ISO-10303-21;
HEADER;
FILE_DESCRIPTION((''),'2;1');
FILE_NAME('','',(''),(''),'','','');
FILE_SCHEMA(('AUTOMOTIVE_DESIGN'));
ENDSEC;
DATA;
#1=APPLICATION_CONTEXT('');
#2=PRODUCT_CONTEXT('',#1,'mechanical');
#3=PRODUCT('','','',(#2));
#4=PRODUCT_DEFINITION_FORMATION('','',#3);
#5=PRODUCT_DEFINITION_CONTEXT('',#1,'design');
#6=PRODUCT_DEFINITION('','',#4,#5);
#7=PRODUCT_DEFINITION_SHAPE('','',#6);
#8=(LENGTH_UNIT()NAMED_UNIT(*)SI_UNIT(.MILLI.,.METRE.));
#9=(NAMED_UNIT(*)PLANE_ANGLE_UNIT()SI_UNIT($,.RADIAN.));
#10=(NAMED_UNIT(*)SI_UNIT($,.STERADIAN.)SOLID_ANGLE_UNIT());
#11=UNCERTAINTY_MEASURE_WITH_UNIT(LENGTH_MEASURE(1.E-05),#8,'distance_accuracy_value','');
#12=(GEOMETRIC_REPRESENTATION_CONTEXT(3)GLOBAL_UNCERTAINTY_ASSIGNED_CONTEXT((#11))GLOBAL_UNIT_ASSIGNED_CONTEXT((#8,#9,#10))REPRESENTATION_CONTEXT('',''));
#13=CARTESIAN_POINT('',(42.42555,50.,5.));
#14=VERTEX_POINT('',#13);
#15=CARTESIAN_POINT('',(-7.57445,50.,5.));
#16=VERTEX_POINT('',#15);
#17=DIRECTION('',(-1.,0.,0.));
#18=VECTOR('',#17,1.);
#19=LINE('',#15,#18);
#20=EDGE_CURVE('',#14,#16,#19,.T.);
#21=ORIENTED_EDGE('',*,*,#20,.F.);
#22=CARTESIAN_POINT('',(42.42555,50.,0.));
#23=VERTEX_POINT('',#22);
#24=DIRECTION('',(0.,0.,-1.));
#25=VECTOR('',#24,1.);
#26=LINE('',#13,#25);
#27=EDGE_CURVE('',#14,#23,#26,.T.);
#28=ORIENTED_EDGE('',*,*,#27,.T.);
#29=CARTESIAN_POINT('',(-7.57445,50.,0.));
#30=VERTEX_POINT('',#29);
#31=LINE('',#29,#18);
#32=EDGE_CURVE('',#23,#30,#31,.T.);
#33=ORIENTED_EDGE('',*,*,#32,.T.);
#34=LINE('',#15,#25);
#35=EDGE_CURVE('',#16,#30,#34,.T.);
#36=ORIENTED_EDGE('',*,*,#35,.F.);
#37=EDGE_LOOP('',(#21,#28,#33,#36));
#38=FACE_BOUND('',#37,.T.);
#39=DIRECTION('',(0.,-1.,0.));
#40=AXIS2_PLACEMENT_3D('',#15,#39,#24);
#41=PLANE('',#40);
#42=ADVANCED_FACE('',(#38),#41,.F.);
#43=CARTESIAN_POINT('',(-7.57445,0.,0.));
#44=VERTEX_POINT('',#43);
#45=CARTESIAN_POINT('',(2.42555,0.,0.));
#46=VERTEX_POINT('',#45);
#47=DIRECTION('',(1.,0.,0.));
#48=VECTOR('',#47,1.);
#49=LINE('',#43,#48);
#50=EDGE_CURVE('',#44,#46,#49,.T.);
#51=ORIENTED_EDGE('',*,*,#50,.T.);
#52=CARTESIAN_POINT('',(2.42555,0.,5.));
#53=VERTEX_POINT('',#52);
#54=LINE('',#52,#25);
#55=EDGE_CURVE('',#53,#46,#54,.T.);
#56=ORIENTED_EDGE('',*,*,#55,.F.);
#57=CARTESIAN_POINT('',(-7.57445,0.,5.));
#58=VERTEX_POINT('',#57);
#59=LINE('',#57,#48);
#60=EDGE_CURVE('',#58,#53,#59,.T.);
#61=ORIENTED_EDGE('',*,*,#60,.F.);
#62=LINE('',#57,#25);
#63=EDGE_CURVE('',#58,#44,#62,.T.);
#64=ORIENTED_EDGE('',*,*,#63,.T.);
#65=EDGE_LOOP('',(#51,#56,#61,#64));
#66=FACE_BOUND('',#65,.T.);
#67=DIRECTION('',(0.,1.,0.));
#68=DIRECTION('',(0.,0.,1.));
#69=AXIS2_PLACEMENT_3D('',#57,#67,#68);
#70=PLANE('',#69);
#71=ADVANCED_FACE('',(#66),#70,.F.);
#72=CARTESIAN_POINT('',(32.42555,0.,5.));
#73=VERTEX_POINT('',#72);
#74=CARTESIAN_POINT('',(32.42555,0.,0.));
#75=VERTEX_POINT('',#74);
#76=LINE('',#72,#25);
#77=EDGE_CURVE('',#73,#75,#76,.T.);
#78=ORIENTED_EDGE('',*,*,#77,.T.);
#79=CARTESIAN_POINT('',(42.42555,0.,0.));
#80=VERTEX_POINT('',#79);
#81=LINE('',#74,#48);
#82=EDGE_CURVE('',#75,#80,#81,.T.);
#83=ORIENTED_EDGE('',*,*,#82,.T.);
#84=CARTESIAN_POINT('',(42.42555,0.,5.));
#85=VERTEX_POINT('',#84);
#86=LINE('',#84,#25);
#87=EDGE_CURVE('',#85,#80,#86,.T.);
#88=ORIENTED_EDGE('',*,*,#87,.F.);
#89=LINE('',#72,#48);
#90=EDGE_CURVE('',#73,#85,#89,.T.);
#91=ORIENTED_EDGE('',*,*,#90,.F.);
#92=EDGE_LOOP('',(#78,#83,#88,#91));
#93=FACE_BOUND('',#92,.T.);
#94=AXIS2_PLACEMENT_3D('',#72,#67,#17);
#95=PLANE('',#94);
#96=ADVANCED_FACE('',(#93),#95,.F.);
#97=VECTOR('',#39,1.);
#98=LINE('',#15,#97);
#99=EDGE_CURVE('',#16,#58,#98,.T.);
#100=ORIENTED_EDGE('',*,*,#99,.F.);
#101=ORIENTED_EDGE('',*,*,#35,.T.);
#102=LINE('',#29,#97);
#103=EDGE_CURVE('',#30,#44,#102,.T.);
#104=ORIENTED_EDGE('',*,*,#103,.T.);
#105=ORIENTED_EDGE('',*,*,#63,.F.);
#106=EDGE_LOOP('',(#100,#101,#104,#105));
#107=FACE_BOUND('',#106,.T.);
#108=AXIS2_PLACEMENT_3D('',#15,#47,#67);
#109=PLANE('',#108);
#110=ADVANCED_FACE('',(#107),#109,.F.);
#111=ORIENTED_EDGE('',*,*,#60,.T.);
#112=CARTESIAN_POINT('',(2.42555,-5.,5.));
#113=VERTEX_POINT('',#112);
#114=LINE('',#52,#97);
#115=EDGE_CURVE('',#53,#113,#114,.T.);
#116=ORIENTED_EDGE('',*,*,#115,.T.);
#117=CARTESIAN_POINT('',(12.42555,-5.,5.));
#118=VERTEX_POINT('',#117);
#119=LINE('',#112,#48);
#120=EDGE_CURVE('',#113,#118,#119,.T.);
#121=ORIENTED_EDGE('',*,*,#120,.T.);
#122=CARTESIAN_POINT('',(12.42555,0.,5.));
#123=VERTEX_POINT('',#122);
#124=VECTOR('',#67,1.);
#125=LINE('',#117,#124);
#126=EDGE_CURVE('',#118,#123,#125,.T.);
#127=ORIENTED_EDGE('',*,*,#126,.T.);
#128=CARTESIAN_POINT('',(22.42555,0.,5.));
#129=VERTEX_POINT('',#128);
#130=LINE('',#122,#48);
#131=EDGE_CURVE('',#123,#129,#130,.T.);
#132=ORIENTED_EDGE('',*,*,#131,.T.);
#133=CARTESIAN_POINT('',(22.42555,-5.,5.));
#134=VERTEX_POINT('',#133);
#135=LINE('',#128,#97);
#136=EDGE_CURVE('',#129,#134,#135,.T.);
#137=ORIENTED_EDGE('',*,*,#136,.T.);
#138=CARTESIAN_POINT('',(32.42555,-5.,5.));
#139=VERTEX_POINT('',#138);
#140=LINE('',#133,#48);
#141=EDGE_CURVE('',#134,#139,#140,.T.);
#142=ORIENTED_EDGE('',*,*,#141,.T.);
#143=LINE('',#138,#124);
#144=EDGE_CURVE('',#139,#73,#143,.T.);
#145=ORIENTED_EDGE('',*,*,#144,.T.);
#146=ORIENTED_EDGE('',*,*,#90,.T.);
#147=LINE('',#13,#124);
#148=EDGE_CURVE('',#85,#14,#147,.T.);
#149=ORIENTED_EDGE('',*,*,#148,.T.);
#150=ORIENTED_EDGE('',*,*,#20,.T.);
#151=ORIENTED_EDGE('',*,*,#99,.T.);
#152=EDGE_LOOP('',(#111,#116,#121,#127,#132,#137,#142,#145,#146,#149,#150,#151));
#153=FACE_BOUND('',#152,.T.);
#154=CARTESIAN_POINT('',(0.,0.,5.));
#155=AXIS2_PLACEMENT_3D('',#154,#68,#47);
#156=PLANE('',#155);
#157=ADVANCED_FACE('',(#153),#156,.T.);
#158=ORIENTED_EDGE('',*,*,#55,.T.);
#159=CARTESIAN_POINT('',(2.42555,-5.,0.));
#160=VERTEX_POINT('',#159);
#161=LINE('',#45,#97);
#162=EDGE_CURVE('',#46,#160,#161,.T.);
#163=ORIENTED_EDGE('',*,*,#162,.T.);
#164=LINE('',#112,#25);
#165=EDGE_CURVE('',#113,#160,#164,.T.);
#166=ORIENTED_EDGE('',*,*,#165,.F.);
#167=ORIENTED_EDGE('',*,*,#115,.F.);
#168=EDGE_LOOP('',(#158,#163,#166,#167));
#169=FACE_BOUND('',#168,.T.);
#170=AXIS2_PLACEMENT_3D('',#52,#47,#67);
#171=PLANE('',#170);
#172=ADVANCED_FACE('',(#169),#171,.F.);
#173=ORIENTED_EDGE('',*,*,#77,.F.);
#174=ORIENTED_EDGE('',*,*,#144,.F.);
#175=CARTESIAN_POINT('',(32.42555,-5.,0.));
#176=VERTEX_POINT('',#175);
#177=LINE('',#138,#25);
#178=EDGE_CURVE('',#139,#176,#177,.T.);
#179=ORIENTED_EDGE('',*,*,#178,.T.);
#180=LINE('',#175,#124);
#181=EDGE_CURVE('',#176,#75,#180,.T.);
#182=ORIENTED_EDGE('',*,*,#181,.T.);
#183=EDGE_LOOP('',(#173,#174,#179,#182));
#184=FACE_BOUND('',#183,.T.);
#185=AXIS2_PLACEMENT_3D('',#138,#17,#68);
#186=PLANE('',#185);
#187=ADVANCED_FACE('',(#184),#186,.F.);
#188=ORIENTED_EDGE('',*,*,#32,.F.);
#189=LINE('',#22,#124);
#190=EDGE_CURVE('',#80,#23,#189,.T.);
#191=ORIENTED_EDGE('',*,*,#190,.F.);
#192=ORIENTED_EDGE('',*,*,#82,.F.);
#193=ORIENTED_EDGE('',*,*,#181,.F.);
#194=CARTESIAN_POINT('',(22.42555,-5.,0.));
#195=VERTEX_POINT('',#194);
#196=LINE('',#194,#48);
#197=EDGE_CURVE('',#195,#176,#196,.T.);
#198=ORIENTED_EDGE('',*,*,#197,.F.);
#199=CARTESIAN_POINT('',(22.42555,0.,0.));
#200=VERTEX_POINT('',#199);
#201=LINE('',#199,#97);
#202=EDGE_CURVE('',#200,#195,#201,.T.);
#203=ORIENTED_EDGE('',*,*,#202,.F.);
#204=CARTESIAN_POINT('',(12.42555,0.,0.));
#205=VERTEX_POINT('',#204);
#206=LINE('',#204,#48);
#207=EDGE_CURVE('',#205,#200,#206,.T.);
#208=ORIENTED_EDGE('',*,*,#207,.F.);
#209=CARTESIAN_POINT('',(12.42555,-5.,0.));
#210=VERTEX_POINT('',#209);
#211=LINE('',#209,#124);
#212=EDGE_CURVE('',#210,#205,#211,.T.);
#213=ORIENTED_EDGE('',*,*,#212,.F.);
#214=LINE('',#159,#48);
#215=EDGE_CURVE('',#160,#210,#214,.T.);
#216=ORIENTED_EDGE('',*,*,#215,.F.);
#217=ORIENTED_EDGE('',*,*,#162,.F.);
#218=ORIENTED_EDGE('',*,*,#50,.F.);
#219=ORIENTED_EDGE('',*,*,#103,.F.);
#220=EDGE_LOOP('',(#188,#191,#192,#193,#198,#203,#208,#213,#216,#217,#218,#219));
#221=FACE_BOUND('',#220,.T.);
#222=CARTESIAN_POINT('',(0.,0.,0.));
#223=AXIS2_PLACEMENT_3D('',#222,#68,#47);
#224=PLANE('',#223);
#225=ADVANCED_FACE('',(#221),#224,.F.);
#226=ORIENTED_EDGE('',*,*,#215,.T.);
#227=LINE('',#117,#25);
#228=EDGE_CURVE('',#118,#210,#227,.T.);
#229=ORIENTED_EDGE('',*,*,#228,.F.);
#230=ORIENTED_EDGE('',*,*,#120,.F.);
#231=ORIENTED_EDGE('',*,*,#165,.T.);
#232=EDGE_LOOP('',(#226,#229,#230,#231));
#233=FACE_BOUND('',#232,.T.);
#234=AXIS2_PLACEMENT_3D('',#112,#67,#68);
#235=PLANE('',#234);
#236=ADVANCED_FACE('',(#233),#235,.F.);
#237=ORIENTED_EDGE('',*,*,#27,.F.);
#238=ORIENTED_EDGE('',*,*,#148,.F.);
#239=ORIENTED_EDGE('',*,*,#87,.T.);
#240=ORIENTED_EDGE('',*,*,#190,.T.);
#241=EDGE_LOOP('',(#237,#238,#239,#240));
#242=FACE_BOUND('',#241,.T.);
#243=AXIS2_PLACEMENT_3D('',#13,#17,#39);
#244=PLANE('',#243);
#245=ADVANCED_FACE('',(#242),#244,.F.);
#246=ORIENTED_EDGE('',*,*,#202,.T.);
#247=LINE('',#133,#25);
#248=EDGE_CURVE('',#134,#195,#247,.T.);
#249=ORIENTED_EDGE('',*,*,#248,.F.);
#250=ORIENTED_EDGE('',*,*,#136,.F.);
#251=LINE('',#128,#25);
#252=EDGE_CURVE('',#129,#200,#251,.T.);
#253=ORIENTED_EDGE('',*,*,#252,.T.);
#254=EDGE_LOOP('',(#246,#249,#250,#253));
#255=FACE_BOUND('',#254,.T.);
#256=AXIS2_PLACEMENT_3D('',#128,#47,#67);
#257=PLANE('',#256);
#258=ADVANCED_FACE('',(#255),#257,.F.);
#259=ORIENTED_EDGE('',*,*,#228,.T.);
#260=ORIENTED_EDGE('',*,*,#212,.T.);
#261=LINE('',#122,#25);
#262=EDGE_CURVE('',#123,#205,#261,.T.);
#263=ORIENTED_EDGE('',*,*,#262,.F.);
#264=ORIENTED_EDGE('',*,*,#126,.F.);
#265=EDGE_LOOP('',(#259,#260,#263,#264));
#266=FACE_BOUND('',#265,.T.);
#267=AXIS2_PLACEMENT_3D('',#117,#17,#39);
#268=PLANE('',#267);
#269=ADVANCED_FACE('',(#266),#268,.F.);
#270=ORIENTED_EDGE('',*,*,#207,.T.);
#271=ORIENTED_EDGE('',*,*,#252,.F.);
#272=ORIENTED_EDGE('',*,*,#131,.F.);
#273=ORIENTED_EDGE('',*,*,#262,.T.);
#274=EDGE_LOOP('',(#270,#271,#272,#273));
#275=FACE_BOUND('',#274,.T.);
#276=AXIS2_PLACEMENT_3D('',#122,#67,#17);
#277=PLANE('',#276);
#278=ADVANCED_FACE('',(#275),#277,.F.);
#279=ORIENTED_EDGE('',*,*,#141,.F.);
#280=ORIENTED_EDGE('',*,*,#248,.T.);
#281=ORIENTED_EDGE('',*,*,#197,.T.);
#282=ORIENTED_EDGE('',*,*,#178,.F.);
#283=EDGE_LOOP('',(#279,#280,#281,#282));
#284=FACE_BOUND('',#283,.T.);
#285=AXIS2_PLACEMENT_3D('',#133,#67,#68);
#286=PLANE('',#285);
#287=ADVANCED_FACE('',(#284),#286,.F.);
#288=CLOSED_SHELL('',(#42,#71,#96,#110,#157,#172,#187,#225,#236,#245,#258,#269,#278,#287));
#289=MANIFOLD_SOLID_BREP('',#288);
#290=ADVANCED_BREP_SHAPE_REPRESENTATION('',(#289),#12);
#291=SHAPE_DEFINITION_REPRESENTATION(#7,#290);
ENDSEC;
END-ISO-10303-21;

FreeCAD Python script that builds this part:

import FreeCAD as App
import Part
import Sketcher

V = App.Vector
Q = App.Units.Quantity


def add_polygon(sketch, points):
    """Adds a closed chain of lines whose ends are joined by coincident constraints."""
    first, n = sketch.GeometryCount, len(points)
    for a, b in zip(points, points[1:] + points[:1]):
        sketch.addGeometry(Part.LineSegment(App.Vector(*a, 0), App.Vector(*b, 0)), False)
    for i in range(n):
        sketch.addConstraint(Sketcher.Constraint("Coincident", first + i, 2, first + (i + 1) % n, 1))

doc = App.newDocument("Part")
params = doc.addObject("Spreadsheet::Sheet", "Params")
for row, (alias, value) in enumerate([
    ("sketch1_width", "10 mm"),
    ("sketch1_height", "5 mm"),
    ("pad1_length", "5 mm"),
], start=1):
    params.set(f"A{row}", alias)
    params.set(f"B{row}", "=" + value)
    params.setAlias(f"B{row}", alias)

body = doc.addObject("PartDesign::Body", "Body")

# Sketch on XY plane
sketch1 = body.newObject("Sketcher::SketchObject", "Sketch")
sketch1.AttachmentSupport = (doc.getObject("XY_Plane"), [""])
sketch1.MapMode = "FlatFace"
add_polygon(sketch1, [(-8, 0), (2, 0), (2, -5), (12, -5), (12, 0), (22, 0), (22, -5), (32, -5), (32, 0), (42, 0), (42, 50), (-8, 50)])  # lines 0-11
sketch1.addConstraint(Sketcher.Constraint("Horizontal", 0))
sketch1.addConstraint(Sketcher.Constraint("Vertical", 1))
sketch1.addConstraint(Sketcher.Constraint("Horizontal", 2))
sketch1.addConstraint(Sketcher.Constraint("Vertical", 3))
sketch1.addConstraint(Sketcher.Constraint("Horizontal", 4))
sketch1.addConstraint(Sketcher.Constraint("Vertical", 5))
sketch1.addConstraint(Sketcher.Constraint("Horizontal", 6))
sketch1.addConstraint(Sketcher.Constraint("Vertical", 7))
sketch1.addConstraint(Sketcher.Constraint("Horizontal", 8))
sketch1.addConstraint(Sketcher.Constraint("Vertical", 9))
sketch1.addConstraint(Sketcher.Constraint("Horizontal", 10))
sketch1.addConstraint(Sketcher.Constraint("Vertical", 11))
sketch1.addConstraint(Sketcher.Constraint("PointOnObject", 0, 2, -1))
sketch1.addConstraint(Sketcher.Constraint("PointOnObject", 3, 2, -1))
sketch1.addConstraint(Sketcher.Constraint("PointOnObject", 7, 2, -1))
sketch1.addConstraint(Sketcher.Constraint("Horizontal", 2, 2, 5, 2))
sketch1.addConstraint(Sketcher.Constraint("Equal", 0, 2))
sketch1.addConstraint(Sketcher.Constraint("Equal", 2, 4))
sketch1.addConstraint(Sketcher.Constraint("Equal", 4, 6))
sketch1.addConstraint(Sketcher.Constraint("Equal", 6, 8))
sketch1.addConstraint(Sketcher.Constraint("Equal", 10, 9))
sketch1.addConstraint(Sketcher.Constraint("DistanceX", 0, 1, 0, 2, Q("10 mm")))
sketch1.addConstraint(Sketcher.Constraint("DistanceY", 1, 2, 1, 1, Q("5 mm")))
sketch1.addConstraint(Sketcher.Constraint("DistanceX", -1, 1, 0, 2, Q("2.42555 mm")))
sketch1.setExpression("Constraints[33]", "Params.sketch1_width")
sketch1.setExpression("Constraints[34]", "Params.sketch1_height")
pad1 = body.newObject("PartDesign::Pad", "Pad")
pad1.Profile = sketch1
pad1.setExpression("Length", "Params.pad1_length")

doc.recompute()
